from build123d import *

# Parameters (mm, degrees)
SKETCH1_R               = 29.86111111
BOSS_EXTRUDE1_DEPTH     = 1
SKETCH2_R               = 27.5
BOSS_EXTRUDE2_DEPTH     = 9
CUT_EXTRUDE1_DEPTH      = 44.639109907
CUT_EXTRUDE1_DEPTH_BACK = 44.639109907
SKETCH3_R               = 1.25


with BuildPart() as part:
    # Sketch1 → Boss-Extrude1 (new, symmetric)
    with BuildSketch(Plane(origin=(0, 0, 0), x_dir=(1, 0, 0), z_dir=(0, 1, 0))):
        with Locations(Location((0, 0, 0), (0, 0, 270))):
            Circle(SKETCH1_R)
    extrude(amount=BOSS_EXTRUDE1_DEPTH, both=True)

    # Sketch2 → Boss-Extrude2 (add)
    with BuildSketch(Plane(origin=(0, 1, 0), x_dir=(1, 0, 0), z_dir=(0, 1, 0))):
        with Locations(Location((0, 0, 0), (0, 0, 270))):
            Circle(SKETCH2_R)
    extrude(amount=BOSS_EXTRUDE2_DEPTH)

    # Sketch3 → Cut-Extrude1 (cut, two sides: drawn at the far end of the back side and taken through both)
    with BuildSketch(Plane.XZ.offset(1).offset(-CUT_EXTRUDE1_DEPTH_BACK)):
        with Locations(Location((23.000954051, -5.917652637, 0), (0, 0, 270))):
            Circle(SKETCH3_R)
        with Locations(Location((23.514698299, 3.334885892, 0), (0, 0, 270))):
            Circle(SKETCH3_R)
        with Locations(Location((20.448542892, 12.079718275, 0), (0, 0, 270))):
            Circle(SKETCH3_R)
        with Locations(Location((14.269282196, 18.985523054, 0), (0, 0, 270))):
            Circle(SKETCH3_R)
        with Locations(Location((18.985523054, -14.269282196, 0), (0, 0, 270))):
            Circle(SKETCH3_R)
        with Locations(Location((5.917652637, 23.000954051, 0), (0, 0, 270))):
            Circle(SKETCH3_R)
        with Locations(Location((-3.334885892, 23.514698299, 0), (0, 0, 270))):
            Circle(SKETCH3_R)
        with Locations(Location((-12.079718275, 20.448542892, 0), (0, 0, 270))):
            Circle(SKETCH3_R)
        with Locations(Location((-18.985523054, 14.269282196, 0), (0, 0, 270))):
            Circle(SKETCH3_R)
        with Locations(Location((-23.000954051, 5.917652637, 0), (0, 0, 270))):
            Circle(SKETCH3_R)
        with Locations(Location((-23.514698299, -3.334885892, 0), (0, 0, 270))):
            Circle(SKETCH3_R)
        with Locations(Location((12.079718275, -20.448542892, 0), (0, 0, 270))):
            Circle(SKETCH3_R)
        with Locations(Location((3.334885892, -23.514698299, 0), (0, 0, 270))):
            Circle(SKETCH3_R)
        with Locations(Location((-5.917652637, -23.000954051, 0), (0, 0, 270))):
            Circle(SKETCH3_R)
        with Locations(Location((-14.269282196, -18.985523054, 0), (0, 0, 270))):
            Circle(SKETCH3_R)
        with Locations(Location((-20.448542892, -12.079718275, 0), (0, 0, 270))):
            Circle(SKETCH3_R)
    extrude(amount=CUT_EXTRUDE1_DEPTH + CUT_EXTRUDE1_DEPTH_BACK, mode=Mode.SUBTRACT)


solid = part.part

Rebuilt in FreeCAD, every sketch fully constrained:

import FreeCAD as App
import Part
import Sketcher
from FreeCAD import Vector
Q = App.Units.Quantity

doc = App.newDocument("Part")
body = doc.addObject("PartDesign::Body", "Body")

# Sketch on XZ plane
sketch1 = body.newObject("Sketcher::SketchObject", "Sketch")
sketch1.AttachmentSupport = (doc.getObject("XZ_Plane"), [""])
sketch1.MapMode = "FlatFace"
sketch1.addGeometry(Part.Circle(Vector(0, 0, 0), Vector(0, 0, 1), 29.861111), False)
sketch1.addConstraint(Sketcher.Constraint("Coincident", 0, 3, -1, 1))
sketch1.addConstraint(Sketcher.Constraint("Diameter", 0, Q("59.722222 mm")))
pad1 = body.newObject("PartDesign::Pad", "Pad")
pad1.Profile = sketch1
pad1.Length = 2
pad1.Midplane = True

# Sketch on XZ plane
sketch2 = body.newObject("Sketcher::SketchObject", "Sketch001")
sketch2.AttachmentSupport = (doc.getObject("XZ_Plane"), [""])
sketch2.MapMode = "FlatFace"
sketch2.AttachmentOffset = App.Placement(Vector(0, 0, -1), App.Rotation())
sketch2.addGeometry(Part.Circle(Vector(0, 0, 0), Vector(0, 0, 1), 27.5), False)
sketch2.addConstraint(Sketcher.Constraint("Coincident", 0, 3, -1, 1))
sketch2.addConstraint(Sketcher.Constraint("Diameter", 0, Q("55 mm")))
pad2 = body.newObject("PartDesign::Pad", "Pad001")
pad2.Profile = sketch2
pad2.Length = 9
pad2.Reversed = True

# Sketch on XZ plane
sketch3 = body.newObject("Sketcher::SketchObject", "Sketch002")
sketch3.AttachmentSupport = (doc.getObject("XZ_Plane"), [""])
sketch3.MapMode = "FlatFace"
sketch3.AttachmentOffset = App.Placement(Vector(0, 0, 1), App.Rotation())
sketch3.addGeometry(Part.Circle(Vector(23.000954, -5.917653, 0), Vector(0, 0, 1), 1.25), False)
sketch3.addGeometry(Part.Circle(Vector(23.514698, 3.334886, 0), Vector(0, 0, 1), 1.25), False)
sketch3.addGeometry(Part.Circle(Vector(20.448543, 12.079718, 0), Vector(0, 0, 1), 1.25), False)
sketch3.addGeometry(Part.Circle(Vector(14.269282, 18.985523, 0), Vector(0, 0, 1), 1.25), False)
sketch3.addGeometry(Part.Circle(Vector(18.985523, -14.269282, 0), Vector(0, 0, 1), 1.25), False)
sketch3.addGeometry(Part.Circle(Vector(5.917653, 23.000954, 0), Vector(0, 0, 1), 1.25), False)
sketch3.addGeometry(Part.Circle(Vector(-3.334886, 23.514698, 0), Vector(0, 0, 1), 1.25), False)
sketch3.addGeometry(Part.Circle(Vector(-12.079718, 20.448543, 0), Vector(0, 0, 1), 1.25), False)
sketch3.addGeometry(Part.Circle(Vector(-18.985523, 14.269282, 0), Vector(0, 0, 1), 1.25), False)
sketch3.addGeometry(Part.Circle(Vector(-23.000954, 5.917653, 0), Vector(0, 0, 1), 1.25), False)
sketch3.addGeometry(Part.Circle(Vector(-23.514698, -3.334886, 0), Vector(0, 0, 1), 1.25), False)
sketch3.addGeometry(Part.Circle(Vector(12.079718, -20.448543, 0), Vector(0, 0, 1), 1.25), False)
sketch3.addGeometry(Part.Circle(Vector(3.334886, -23.514698, 0), Vector(0, 0, 1), 1.25), False)
sketch3.addGeometry(Part.Circle(Vector(-5.917653, -23.000954, 0), Vector(0, 0, 1), 1.25), False)
sketch3.addGeometry(Part.Circle(Vector(-14.269282, -18.985523, 0), Vector(0, 0, 1), 1.25), False)
sketch3.addGeometry(Part.Circle(Vector(-20.448543, -12.079718, 0), Vector(0, 0, 1), 1.25), False)
sketch3.addConstraint(Sketcher.Constraint("Equal", 0, 1))
sketch3.addConstraint(Sketcher.Constraint("Equal", 1, 2))
sketch3.addConstraint(Sketcher.Constraint("Equal", 2, 3))
sketch3.addConstraint(Sketcher.Constraint("Equal", 3, 4))
sketch3.addConstraint(Sketcher.Constraint("Equal", 4, 5))
sketch3.addConstraint(Sketcher.Constraint("Equal", 5, 6))
sketch3.addConstraint(Sketcher.Constraint("Equal", 6, 7))
sketch3.addConstraint(Sketcher.Constraint("Equal", 7, 8))
sketch3.addConstraint(Sketcher.Constraint("Equal", 8, 9))
sketch3.addConstraint(Sketcher.Constraint("Equal", 9, 10))
sketch3.addConstraint(Sketcher.Constraint("Equal", 10, 11))
sketch3.addConstraint(Sketcher.Constraint("Equal", 11, 12))
sketch3.addConstraint(Sketcher.Constraint("Equal", 12, 13))
sketch3.addConstraint(Sketcher.Constraint("Equal", 13, 14))
sketch3.addConstraint(Sketcher.Constraint("Equal", 14, 15))
sketch3.addConstraint(Sketcher.Constraint("Symmetric", 4, 3, 8, 3, -1, 1))
sketch3.addConstraint(Sketcher.Constraint("Symmetric", 0, 3, 9, 3, -1, 1))
sketch3.addConstraint(Sketcher.Constraint("Symmetric", 1, 3, 10, 3, -1, 1))
sketch3.addConstraint(Sketcher.Constraint("Symmetric", 7, 3, 11, 3, -1, 1))
sketch3.addConstraint(Sketcher.Constraint("Symmetric", 6, 3, 12, 3, -1, 1))
sketch3.addConstraint(Sketcher.Constraint("Symmetric", 5, 3, 13, 3, -1, 1))
sketch3.addConstraint(Sketcher.Constraint("Symmetric", 3, 3, 14, 3, -1, 1))
sketch3.addConstraint(Sketcher.Constraint("Symmetric", 2, 3, 15, 3, -1, 1))
sketch3.addConstraint(Sketcher.Constraint("Diameter", 0, Q("2.5 mm")))
sketch3.addConstraint(Sketcher.Constraint("DistanceY", 4, 3, 2, 3, Q("26.349 mm")))
sketch3.addConstraint(Sketcher.Constraint("DistanceX", 7, 3, 3, 3, Q("26.349 mm")))
sketch3.addConstraint(Sketcher.Constraint("DistanceX", -1, 1, 1, 3, Q("23.514698 mm")))
sketch3.addConstraint(Sketcher.Constraint("DistanceY", -1, 1, 6, 3, Q("23.514698 mm")))
sketch3.addConstraint(Sketcher.Constraint("DistanceX", 5, 3, 0, 3, Q("17.083301 mm")))
sketch3.addConstraint(Sketcher.Constraint("DistanceY", 9, 3, 5, 3, Q("17.083301 mm")))
sketch3.addConstraint(Sketcher.Constraint("DistanceY", -1, 1, 2, 3, Q("12.079718 mm")))
sketch3.addConstraint(Sketcher.Constraint("DistanceX", 7, 3, -1, 1, Q("12.079718 mm")))
sketch3.addConstraint(Sketcher.Constraint("DistanceY", 0, 3, 1, 3, Q("9.252539 mm")))
sketch3.addConstraint(Sketcher.Constraint("DistanceX", 2, 3, 0, 3, Q("2.552411 mm")))
sketch3.addConstraint(Sketcher.Constraint("DistanceY", 0, 3, 2, 3, Q("17.997371 mm")))
sketch3.addConstraint(Sketcher.Constraint("DistanceX", 3, 3, 2, 3, Q("6.179261 mm")))
sketch3.addConstraint(Sketcher.Constraint("DistanceX", 4, 3, 0, 3, Q("4.015431 mm")))
sketch3.addConstraint(Sketcher.Constraint("DistanceY", 3, 3, 5, 3, Q("4.015431 mm")))
sketch3.addConstraint(Sketcher.Constraint("DistanceX", 6, 3, 5, 3, Q("9.252539 mm")))
sketch3.addConstraint(Sketcher.Constraint("DistanceY", 7, 3, 5, 3, Q("2.552411 mm")))
pocket1 = body.newObject("PartDesign::Pocket", "Pocket")
pocket1.Profile = sketch3
pocket1.Type = "ThroughAll"
pocket1.Midplane = True

doc.recompute()
